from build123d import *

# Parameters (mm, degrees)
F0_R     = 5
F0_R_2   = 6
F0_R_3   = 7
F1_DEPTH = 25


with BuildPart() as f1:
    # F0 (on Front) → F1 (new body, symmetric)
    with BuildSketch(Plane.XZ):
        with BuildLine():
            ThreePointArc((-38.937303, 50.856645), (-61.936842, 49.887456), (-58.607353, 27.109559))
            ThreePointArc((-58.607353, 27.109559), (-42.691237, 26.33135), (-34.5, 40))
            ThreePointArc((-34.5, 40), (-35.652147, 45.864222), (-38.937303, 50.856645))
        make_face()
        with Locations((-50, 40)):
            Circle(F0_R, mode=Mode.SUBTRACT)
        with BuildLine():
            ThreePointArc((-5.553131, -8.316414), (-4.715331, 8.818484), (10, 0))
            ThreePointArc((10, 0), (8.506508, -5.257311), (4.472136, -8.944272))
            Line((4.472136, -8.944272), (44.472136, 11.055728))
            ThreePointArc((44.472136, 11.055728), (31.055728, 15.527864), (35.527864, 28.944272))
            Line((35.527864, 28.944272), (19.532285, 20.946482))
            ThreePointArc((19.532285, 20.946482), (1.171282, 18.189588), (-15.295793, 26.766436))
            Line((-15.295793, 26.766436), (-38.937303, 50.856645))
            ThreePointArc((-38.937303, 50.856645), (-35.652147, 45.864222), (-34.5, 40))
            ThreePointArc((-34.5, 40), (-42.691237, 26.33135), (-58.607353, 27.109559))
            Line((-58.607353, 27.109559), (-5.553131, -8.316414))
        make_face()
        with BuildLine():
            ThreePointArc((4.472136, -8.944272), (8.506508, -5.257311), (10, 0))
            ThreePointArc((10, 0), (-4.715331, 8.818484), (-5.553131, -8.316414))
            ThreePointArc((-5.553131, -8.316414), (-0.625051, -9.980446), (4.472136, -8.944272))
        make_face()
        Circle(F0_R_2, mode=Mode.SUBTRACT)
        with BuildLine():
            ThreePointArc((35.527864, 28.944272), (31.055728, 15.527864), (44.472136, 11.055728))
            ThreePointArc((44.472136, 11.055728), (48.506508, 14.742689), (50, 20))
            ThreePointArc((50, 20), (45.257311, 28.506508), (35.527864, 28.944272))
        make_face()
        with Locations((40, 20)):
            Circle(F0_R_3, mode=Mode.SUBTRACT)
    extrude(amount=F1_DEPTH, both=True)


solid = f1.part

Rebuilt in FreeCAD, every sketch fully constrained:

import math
import FreeCAD as App
import Part
import Sketcher

V = App.Vector
Q = App.Units.Quantity

doc = App.newDocument("Part")
params = doc.addObject("Spreadsheet::Sheet", "Params")
for row, (alias, value) in enumerate([
    ("sketch1_diameter", "12 mm"),
    ("sketch1_diameter2", "10 mm"),
    ("sketch1_diameter3", "14 mm"),
    ("sketch1_radius", "10.000001 mm"),
    ("sketch1_radius2", "15.5 mm"),
    ("pad1_length", "50 mm"),
], start=1):
    params.set(f"A{row}", alias)
    params.set(f"B{row}", "=" + value)
    params.setAlias(f"B{row}", alias)

body = doc.addObject("PartDesign::Body", "Body")

sketch1 = body.newObject("Sketcher::SketchObject", "Sketch")
sketch1.AttachmentSupport = (doc.getObject("XZ_Plane"), [""])
sketch1.MapMode = "FlatFace"
sketch1.addGeometry(Part.ArcOfCircle(Part.Circle(V(-50, 40, 0), V(0, 0, 1), 15.5), math.radians(44.461411), math.radians(236.267715)), False)
sketch1.addGeometry(Part.LineSegment(V(-58.607353, 27.109559, 0), V(-5.553131, -8.316414, 0)), False)
sketch1.addGeometry(Part.ArcOfCircle(Part.Circle(V(0, 0.000005, 0), V(0, 0, 1), 10.000004), math.radians(-123.732267), math.radians(-63.434961)), False)
sketch1.addGeometry(Part.LineSegment(V(4.472136, -8.944272, 0), V(44.472136, 11.055728, 0)), False)
sketch1.addGeometry(Part.ArcOfCircle(Part.Circle(V(39.999999, 20.000001, 0), V(0, 0, 1), 10.000001), math.radians(-63.434945), math.radians(-0.000003)), False)
sketch1.addGeometry(Part.ArcOfCircle(Part.Circle(V(40, 20, 0), V(0, 0, 1), 10), math.radians(0.000002), math.radians(116.565049)), False)
sketch1.addGeometry(Part.LineSegment(V(35.527864, 28.944272, 0), V(19.532285, 20.946482, 0)), False)
sketch1.addGeometry(Part.ArcOfCircle(Part.Circle(V(6.115878, 47.779302, 0), V(0, 0, 1), 30.000003), math.radians(-135.538585), math.radians(-63.434954)), False)
sketch1.addGeometry(Part.LineSegment(V(-15.295793, 26.766436, 0), V(-38.937303, 50.856645, 0)), False)
sketch1.addGeometry(Part.Circle(V(0, 0, 0), V(0, 0, 1), 6), False)
sketch1.addGeometry(Part.Circle(V(-50, 40, 0), V(0, 0, 1), 5), False)
sketch1.addGeometry(Part.Circle(V(40, 20, 0), V(0, 0, 1), 7), False)
sketch1.addConstraint(Sketcher.Constraint("Tangent", 0, 2, 1, 1))
sketch1.addConstraint(Sketcher.Constraint("Tangent", 1, 2, 2, 1))
sketch1.addConstraint(Sketcher.Constraint("Tangent", 2, 2, 3, 1))
sketch1.addConstraint(Sketcher.Constraint("Tangent", 3, 2, 4, 1))
sketch1.addConstraint(Sketcher.Constraint("Tangent", 4, 2, 5, 1))
sketch1.addConstraint(Sketcher.Constraint("Tangent", 5, 2, 6, 1))
sketch1.addConstraint(Sketcher.Constraint("Tangent", 6, 2, 7, 2))
sketch1.addConstraint(Sketcher.Constraint("Tangent", 7, 1, 8, 1))
sketch1.addConstraint(Sketcher.Constraint("Tangent", 8, 2, 0, 1))
sketch1.addConstraint(Sketcher.Constraint("Coincident", 2, 3, -1, 1))
sketch1.addConstraint(Sketcher.Constraint("Coincident", 9, 3, -1, 1))
sketch1.addConstraint(Sketcher.Constraint("Coincident", 10, 3, 0, 3))
sketch1.addConstraint(Sketcher.Constraint("Coincident", 11, 3, 4, 3))
sketch1.addConstraint(Sketcher.Constraint("Equal", 4, 5))
sketch1.addConstraint(Sketcher.Constraint("Parallel", 3, 6))
sketch1.addConstraint(Sketcher.Constraint("Horizontal", 11, 3, 4, 2))
sketch1.addConstraint(Sketcher.Constraint("Diameter", 9, Q("12 mm")))
sketch1.addConstraint(Sketcher.Constraint("Diameter", 10, Q("10 mm")))
sketch1.addConstraint(Sketcher.Constraint("Diameter", 11, Q("14 mm")))
sketch1.addConstraint(Sketcher.Constraint("Radius", 4, Q("10.000001 mm")))
sketch1.addConstraint(Sketcher.Constraint("Radius", 0, Q("15.5 mm")))
sketch1.addConstraint(Sketcher.Constraint("DistanceX", 0, 3, -1, 1, Q("50 mm")))
sketch1.addConstraint(Sketcher.Constraint("DistanceY", -1, 1, 0, 3, Q("40 mm")))
sketch1.addConstraint(Sketcher.Constraint("DistanceX", -1, 1, 4, 3, Q("39.999999 mm")))
sketch1.addConstraint(Sketcher.Constraint("DistanceY", -1, 1, 4, 3, Q("20.000001 mm")))
sketch1.addConstraint(Sketcher.Constraint("DistanceX", 2, 2, 3, 2, Q("40 mm")))
sketch1.addConstraint(Sketcher.Constraint("Radius", 7, Q("30.000003 mm")))
sketch1.addConstraint(Sketcher.Constraint("Distance", 6, Q("17.883601 mm")))
sketch1.setExpression("Constraints[16]", "Params.sketch1_diameter")
sketch1.setExpression("Constraints[17]", "Params.sketch1_diameter2")
sketch1.setExpression("Constraints[18]", "Params.sketch1_diameter3")
sketch1.setExpression("Constraints[19]", "Params.sketch1_radius")
sketch1.setExpression("Constraints[20]", "Params.sketch1_radius2")
pad1 = body.newObject("PartDesign::Pad", "Pad")
pad1.Profile = sketch1
pad1.setExpression("Length", "Params.pad1_length")
pad1.Midplane = True

doc.recompute()
